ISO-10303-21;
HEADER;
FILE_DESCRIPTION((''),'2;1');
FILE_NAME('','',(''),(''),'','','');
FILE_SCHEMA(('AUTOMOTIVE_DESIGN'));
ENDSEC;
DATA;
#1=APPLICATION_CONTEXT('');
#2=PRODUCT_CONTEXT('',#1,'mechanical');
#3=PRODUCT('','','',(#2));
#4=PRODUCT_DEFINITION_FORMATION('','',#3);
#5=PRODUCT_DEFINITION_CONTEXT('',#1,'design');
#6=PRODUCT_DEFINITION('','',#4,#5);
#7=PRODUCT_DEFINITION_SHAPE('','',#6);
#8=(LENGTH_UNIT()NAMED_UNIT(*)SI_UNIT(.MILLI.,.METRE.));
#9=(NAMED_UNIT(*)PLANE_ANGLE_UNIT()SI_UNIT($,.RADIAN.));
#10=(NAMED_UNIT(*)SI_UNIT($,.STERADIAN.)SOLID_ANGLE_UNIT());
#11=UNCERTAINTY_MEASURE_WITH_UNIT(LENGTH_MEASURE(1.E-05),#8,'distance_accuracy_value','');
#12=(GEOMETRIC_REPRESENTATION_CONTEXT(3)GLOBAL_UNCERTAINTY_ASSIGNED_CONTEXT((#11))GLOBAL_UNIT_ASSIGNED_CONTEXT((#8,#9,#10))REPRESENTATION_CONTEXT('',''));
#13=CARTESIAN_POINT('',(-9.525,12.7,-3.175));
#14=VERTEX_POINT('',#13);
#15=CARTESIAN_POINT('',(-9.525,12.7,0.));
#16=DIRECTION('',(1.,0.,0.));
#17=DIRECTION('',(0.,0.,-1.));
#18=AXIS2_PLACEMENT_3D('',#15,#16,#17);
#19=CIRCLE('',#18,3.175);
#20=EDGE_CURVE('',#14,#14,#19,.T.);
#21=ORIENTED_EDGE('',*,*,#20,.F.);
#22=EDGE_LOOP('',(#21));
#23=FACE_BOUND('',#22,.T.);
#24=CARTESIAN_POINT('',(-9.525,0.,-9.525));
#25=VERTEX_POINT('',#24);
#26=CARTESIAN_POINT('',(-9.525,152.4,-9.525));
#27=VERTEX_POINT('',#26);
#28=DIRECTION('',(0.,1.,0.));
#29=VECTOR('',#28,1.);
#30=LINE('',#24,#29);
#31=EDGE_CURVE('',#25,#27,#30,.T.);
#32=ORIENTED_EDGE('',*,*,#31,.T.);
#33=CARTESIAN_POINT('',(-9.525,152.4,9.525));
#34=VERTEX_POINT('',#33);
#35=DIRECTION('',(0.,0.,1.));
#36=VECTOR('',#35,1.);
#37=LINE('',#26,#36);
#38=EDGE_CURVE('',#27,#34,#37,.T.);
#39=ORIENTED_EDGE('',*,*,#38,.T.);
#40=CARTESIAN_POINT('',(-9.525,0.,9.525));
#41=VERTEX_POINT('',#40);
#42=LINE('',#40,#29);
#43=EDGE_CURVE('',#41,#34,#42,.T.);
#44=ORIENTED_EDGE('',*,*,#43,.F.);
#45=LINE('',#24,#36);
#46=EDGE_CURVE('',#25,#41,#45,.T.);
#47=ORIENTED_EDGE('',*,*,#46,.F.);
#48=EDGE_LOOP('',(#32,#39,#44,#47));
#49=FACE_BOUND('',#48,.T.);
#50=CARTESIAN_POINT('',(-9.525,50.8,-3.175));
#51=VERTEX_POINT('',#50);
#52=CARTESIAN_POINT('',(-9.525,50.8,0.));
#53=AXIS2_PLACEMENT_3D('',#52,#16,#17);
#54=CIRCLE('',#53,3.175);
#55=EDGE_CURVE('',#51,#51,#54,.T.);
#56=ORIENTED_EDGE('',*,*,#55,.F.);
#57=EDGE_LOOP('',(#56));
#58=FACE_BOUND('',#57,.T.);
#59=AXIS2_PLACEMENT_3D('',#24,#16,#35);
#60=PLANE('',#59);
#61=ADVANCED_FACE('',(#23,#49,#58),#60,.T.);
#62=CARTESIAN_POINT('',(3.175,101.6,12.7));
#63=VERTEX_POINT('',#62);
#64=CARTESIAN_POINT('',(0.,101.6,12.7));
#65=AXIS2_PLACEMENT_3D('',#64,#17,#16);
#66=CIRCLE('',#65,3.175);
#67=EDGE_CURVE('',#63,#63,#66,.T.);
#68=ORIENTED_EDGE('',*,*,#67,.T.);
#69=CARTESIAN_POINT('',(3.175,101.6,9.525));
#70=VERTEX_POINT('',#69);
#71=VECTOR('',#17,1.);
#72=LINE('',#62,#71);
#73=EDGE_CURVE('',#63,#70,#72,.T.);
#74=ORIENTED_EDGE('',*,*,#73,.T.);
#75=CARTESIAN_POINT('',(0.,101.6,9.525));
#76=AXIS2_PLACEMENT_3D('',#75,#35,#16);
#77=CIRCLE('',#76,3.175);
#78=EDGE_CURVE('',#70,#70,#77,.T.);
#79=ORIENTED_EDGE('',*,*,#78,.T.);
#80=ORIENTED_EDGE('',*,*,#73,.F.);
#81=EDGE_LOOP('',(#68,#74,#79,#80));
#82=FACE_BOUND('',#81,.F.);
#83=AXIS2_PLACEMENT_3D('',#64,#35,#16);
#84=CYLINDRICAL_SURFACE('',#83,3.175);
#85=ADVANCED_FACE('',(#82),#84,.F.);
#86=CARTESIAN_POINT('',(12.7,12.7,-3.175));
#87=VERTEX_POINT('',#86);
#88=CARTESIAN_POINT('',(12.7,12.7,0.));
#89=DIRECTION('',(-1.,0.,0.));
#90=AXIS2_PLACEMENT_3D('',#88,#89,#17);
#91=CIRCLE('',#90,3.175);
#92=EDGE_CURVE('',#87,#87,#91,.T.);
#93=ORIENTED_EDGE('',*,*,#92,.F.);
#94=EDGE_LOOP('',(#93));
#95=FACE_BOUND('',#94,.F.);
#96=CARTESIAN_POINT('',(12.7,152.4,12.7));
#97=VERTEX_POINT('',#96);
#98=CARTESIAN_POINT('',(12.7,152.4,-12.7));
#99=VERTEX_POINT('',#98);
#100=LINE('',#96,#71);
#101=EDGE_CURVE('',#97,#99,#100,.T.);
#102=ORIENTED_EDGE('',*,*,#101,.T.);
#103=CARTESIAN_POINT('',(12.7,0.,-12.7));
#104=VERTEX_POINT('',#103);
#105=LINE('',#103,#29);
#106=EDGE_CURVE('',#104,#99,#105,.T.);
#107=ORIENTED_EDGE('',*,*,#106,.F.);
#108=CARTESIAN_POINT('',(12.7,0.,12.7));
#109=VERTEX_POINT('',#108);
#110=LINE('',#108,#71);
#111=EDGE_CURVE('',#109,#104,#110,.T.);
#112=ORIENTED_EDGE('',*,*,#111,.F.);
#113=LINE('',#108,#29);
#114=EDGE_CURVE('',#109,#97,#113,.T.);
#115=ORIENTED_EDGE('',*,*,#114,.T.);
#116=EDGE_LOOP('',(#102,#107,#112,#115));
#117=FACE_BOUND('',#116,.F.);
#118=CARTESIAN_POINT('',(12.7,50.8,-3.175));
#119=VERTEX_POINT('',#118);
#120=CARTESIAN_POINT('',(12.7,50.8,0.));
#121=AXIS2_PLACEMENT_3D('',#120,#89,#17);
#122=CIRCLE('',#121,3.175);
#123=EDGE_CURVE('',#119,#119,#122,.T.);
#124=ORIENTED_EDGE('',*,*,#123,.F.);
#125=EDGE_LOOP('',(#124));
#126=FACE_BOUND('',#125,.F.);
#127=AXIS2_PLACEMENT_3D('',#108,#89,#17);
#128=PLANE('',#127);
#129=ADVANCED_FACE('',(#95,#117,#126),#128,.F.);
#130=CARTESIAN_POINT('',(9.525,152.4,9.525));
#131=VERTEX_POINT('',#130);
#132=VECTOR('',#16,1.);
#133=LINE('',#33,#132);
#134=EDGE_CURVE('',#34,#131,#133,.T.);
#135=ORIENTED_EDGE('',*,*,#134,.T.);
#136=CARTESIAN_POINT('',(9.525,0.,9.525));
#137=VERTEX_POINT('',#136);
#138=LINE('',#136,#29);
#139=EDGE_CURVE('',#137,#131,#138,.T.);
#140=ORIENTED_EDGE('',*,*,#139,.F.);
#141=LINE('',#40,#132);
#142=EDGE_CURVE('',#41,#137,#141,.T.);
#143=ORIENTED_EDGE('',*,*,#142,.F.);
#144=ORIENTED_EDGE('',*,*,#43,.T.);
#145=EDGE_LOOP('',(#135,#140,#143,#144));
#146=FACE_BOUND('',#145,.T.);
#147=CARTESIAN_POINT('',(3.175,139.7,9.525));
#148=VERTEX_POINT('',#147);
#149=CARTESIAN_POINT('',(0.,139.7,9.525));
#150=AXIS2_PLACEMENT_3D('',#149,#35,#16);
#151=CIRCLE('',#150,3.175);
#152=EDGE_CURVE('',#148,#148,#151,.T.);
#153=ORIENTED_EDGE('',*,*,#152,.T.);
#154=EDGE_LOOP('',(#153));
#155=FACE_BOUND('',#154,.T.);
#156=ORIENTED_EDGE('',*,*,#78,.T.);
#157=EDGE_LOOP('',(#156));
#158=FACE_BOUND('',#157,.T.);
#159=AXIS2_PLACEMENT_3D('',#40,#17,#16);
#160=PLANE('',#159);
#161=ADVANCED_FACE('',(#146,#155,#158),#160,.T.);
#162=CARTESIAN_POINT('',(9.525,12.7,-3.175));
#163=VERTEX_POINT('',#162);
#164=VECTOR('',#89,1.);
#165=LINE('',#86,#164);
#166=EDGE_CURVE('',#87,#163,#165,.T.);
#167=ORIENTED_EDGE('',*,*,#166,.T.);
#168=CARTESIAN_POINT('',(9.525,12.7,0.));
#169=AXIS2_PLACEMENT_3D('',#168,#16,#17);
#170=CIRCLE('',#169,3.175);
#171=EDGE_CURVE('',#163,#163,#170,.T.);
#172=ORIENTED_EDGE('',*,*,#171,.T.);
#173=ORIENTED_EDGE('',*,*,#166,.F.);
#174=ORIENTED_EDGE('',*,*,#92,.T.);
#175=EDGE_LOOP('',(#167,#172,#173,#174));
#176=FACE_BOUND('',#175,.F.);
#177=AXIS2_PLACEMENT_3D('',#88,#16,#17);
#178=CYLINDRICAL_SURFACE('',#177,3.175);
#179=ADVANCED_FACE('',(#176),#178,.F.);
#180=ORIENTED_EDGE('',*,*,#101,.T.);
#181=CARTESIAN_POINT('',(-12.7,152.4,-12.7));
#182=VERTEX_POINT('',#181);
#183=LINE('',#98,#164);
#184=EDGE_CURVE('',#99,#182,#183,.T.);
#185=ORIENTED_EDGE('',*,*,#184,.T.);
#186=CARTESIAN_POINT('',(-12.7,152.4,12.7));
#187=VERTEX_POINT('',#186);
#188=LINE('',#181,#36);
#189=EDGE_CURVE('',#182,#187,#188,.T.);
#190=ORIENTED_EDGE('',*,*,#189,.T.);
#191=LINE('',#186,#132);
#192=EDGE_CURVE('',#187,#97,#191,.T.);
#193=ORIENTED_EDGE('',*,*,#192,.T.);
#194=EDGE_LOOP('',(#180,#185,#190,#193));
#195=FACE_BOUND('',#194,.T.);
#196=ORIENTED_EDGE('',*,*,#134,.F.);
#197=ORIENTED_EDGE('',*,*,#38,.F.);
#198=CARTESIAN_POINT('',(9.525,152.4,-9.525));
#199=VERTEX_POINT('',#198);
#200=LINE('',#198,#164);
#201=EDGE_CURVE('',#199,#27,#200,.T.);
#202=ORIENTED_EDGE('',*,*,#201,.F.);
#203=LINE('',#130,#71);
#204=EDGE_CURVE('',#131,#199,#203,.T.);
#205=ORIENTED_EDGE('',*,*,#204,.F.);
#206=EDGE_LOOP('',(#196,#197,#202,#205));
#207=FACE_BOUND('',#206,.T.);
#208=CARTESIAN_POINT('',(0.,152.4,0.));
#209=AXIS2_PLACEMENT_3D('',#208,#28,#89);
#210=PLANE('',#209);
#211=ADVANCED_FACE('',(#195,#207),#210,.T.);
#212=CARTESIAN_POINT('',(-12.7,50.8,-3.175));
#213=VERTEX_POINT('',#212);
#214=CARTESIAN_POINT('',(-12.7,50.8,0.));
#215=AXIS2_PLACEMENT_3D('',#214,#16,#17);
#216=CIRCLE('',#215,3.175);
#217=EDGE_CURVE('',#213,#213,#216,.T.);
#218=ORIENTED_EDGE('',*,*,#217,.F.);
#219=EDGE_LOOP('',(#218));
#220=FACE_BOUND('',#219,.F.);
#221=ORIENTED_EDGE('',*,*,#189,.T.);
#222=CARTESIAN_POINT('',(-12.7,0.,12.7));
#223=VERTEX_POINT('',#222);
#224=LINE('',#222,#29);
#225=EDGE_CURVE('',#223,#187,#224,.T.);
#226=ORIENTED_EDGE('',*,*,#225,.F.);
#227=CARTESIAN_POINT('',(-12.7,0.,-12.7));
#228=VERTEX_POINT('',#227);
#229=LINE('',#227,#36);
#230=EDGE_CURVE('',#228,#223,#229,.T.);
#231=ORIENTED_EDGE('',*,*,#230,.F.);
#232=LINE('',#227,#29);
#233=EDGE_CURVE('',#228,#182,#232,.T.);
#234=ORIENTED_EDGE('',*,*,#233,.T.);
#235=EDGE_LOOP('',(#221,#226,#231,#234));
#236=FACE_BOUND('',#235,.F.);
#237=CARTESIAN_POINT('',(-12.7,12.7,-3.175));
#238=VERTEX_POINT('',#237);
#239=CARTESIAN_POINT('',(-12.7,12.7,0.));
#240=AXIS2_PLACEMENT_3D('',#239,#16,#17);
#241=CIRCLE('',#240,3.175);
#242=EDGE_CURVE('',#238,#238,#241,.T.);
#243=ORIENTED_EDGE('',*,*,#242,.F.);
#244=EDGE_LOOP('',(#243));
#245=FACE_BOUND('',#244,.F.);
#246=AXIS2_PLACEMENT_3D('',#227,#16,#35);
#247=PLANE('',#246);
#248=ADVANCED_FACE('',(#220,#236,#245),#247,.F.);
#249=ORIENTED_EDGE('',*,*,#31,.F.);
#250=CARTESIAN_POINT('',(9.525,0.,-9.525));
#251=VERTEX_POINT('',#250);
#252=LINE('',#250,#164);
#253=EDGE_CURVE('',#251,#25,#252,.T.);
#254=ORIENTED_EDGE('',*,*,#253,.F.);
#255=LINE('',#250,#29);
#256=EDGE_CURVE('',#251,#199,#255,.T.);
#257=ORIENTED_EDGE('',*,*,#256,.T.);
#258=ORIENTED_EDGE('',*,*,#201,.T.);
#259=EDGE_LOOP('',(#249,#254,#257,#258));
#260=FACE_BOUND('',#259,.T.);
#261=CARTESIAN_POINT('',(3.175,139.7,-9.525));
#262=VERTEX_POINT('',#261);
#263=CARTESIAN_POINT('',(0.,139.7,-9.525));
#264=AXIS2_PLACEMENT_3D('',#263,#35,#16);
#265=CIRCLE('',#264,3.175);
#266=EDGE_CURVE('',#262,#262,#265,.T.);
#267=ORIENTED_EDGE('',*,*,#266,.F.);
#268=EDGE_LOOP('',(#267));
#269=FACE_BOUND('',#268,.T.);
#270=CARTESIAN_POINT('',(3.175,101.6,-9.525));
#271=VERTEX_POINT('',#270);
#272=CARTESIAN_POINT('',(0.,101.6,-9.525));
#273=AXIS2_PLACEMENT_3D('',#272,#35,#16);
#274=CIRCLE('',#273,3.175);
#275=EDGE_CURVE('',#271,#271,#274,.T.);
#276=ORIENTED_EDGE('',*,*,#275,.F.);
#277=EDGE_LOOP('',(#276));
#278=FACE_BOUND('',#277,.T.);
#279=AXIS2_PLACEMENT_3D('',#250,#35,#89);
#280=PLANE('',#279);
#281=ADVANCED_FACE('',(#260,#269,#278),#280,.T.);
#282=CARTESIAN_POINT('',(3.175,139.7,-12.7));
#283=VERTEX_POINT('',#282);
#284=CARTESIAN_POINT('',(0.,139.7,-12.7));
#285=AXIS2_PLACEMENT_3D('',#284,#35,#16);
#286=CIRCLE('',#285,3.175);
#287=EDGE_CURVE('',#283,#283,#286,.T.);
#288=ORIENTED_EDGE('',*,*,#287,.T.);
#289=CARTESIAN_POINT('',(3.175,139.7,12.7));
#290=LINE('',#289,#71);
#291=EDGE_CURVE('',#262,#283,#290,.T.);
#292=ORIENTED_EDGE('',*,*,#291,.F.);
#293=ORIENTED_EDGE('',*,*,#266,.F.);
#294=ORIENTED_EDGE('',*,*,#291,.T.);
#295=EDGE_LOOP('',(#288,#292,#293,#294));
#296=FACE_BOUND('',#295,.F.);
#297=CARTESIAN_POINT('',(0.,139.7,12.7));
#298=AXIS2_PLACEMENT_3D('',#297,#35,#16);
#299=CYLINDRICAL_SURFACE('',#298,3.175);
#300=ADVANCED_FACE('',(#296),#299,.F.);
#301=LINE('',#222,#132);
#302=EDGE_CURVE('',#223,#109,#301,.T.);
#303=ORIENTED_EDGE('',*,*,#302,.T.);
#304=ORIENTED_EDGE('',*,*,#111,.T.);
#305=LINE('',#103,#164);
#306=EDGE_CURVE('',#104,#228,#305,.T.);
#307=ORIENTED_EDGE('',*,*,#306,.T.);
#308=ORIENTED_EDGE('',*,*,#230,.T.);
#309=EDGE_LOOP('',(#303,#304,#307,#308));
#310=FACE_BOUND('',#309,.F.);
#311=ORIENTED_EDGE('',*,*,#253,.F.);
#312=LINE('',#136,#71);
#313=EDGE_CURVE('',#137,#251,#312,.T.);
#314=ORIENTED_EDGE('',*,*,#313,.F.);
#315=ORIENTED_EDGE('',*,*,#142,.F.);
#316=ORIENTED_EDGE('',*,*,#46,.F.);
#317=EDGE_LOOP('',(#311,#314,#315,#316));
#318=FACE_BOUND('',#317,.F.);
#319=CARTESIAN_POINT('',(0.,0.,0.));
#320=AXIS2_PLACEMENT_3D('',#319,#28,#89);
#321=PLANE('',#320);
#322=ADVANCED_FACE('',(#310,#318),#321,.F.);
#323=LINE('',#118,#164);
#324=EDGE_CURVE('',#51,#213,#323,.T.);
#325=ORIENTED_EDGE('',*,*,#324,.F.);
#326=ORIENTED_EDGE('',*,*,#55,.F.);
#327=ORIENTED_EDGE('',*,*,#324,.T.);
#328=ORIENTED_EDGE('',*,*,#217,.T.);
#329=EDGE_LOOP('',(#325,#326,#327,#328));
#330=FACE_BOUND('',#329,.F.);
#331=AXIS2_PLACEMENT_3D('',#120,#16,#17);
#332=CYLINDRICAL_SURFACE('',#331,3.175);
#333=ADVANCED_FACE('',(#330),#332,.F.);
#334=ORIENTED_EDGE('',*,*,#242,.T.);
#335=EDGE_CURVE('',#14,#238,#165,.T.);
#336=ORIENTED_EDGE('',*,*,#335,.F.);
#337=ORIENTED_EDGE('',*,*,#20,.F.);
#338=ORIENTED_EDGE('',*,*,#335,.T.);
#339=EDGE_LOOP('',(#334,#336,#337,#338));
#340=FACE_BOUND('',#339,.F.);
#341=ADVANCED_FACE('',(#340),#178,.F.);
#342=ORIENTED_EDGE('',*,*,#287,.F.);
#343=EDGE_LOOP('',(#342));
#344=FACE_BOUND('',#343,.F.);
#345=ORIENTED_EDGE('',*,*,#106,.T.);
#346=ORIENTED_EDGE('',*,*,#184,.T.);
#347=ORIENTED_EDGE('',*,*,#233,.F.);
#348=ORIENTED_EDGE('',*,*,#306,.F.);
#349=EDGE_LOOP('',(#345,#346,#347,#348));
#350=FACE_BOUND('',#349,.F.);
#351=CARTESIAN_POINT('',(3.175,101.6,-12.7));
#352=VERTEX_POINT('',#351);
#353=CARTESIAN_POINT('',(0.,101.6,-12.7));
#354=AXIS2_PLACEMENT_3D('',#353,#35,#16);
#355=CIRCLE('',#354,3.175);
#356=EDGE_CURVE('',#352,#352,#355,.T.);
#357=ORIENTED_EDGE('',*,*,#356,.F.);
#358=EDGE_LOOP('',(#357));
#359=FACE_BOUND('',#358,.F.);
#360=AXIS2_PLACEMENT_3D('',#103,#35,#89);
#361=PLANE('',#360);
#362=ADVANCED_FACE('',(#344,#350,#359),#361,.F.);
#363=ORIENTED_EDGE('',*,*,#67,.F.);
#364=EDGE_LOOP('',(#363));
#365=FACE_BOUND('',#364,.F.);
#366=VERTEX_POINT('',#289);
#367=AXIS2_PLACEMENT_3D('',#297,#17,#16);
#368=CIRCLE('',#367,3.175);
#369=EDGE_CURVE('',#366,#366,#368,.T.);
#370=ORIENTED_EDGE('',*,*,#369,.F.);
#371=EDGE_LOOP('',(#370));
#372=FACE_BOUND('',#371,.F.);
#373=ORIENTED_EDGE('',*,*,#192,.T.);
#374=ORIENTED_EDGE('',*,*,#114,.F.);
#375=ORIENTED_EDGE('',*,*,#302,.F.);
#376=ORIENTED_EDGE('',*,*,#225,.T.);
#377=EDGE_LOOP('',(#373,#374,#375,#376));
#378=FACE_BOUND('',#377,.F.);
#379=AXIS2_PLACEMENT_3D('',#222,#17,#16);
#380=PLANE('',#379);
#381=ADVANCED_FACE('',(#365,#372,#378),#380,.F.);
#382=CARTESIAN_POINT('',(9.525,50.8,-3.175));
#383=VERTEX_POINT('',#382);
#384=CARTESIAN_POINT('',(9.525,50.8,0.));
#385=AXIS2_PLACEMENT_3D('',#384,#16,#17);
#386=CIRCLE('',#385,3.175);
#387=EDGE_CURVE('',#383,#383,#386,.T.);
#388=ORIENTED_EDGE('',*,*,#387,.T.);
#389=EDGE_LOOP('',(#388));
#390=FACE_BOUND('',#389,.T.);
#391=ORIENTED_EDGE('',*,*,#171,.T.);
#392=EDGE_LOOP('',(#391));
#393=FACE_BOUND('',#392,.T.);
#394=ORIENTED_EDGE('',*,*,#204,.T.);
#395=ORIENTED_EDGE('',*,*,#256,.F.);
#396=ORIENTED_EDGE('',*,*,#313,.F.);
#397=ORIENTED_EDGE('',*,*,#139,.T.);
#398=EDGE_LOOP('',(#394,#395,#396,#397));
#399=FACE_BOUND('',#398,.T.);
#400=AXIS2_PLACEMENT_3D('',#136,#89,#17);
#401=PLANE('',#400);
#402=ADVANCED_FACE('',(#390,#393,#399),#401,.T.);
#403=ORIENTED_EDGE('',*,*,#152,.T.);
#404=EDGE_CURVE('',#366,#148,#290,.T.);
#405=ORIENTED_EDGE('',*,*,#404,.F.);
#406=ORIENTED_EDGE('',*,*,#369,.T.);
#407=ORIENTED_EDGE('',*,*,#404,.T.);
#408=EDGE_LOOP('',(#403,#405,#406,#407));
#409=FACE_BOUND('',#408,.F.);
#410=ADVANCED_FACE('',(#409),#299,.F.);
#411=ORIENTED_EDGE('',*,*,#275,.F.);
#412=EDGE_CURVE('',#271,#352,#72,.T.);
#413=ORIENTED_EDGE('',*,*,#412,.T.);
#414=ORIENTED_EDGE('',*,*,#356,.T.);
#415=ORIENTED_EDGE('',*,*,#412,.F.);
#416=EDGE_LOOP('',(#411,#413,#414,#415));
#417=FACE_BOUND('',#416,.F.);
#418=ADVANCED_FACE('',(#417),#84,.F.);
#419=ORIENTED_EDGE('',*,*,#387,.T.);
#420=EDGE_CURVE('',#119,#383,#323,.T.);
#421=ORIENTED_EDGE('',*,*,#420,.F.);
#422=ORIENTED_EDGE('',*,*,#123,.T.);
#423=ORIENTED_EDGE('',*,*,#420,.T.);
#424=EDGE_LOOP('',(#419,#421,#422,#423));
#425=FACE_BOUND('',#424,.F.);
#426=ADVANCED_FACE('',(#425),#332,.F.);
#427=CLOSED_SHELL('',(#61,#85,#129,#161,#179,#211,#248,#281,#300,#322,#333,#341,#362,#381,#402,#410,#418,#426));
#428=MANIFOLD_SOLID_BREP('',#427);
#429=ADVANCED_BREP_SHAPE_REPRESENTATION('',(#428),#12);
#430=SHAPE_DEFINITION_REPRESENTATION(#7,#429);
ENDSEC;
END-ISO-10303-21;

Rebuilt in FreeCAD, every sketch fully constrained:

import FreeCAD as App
import Part
import Sketcher

V = App.Vector
Q = App.Units.Quantity

doc = App.newDocument("Part")
params = doc.addObject("Spreadsheet::Sheet", "Params")
for row, (alias, value) in enumerate([
    ("sketch1_width", "1 in"),
    ("sketch1_width2", "0.75 in"),
    ("pad1_length", "6 in"),
    ("sketch2_diameter", "0.25 in"),
    ("pocket1_length", "1 in"),
    ("sketch3_diameter", "0.25 in"),
    ("pocket2_length", "1 in"),
], start=1):
    params.set(f"A{row}", alias)
    params.set(f"B{row}", "=" + value)
    params.setAlias(f"B{row}", alias)

body = doc.addObject("PartDesign::Body", "Body")

# Sketch on XZ plane
sketch1 = doc.addObject("Sketcher::SketchObject", "Sketch")
body.addObject(sketch1)
sketch1.AttachmentSupport = (doc.XZ_Plane, [""])
sketch1.MapMode = "FlatFace"
sketch1.addGeometry([
    Part.LineSegment(V(13, 13, 0), V(13, -13, 0)),  # 0
    Part.LineSegment(V(13, -13, 0), V(-13, -13, 0)),  # 1
    Part.LineSegment(V(-13, -13, 0), V(-13, 13, 0)),  # 2
    Part.LineSegment(V(-13, 13, 0), V(13, 13, 0)),  # 3
    Part.LineSegment(V(-10, -10, 0), V(10, -10, 0)),  # 4
    Part.LineSegment(V(10, -10, 0), V(10, 10, 0)),  # 5
    Part.LineSegment(V(10, 10, 0), V(-10, 10, 0)),  # 6
    Part.LineSegment(V(-10, 10, 0), V(-10, -10, 0)),  # 7
], False)
sketch1.addConstraint([
    Sketcher.Constraint("Coincident", 0, 2, 1, 1),
    Sketcher.Constraint("Coincident", 1, 2, 2, 1),
    Sketcher.Constraint("Coincident", 2, 2, 3, 1),
    Sketcher.Constraint("Coincident", 3, 2, 0, 1),
    Sketcher.Constraint("Coincident", 4, 2, 5, 1),
    Sketcher.Constraint("Coincident", 5, 2, 6, 1),
    Sketcher.Constraint("Coincident", 6, 2, 7, 1),
    Sketcher.Constraint("Coincident", 7, 2, 4, 1),
    Sketcher.Constraint("Vertical", 0),
    Sketcher.Constraint("Horizontal", 1),
    Sketcher.Constraint("Vertical", 2),
    Sketcher.Constraint("Horizontal", 3),
    Sketcher.Constraint("Horizontal", 4),
    Sketcher.Constraint("Vertical", 5),
    Sketcher.Constraint("Horizontal", 6),
    Sketcher.Constraint("Vertical", 7),
    Sketcher.Constraint("Symmetric", 0, 2, 2, 2, -1, 1),
    Sketcher.Constraint("Symmetric", 4, 2, 6, 2, -1, 1),
    Sketcher.Constraint("Equal", 3, 0),
    Sketcher.Constraint("Equal", 6, 5),
    Sketcher.Constraint("DistanceX", 1, 2, 1, 1, Q("1 in")),
    Sketcher.Constraint("DistanceX", 4, 1, 4, 2, Q("0.75 in")),
])
sketch1.setExpression("Constraints[20]", "Params.sketch1_width")
sketch1.setExpression("Constraints[21]", "Params.sketch1_width2")
pad1 = doc.addObject("PartDesign::Pad", "Pad")
body.addObject(pad1)
pad1.Profile = sketch1
pad1.setExpression("Length", "Params.pad1_length")
pad1.Reversed = True

# Sketch on XY plane
sketch2 = doc.addObject("Sketcher::SketchObject", "Sketch001")
body.addObject(sketch2)
sketch2.AttachmentSupport = (doc.XY_Plane, [""])
sketch2.MapMode = "FlatFace"
sketch2.AttachmentOffset = App.Placement(V(0, 0, 0.5 * 25.4), App.Rotation())
sketch2.addGeometry([
    Part.Circle(V(0, 139.7, 0), V(0, 0, 1), 3.2),
    Part.Circle(V(0, 101.6, 0), V(0, 0, 1), 3.2),
], False)
sketch2.addConstraint([
    Sketcher.Constraint("Equal", 0, 1),
    Sketcher.Constraint("PointOnObject", 0, 3, -2),
    Sketcher.Constraint("PointOnObject", 1, 3, -2),
    Sketcher.Constraint("Diameter", 0, Q("0.25 in")),
    Sketcher.Constraint("DistanceY", 1, 3, 0, 3, Q("1.5 in")),
    Sketcher.Constraint("DistanceY", -1, 1, 1, 3, Q("4 in")),
])
sketch2.setExpression("Constraints[3]", "Params.sketch2_diameter")
pocket1 = doc.addObject("PartDesign::Pocket", "Pocket")
body.addObject(pocket1)
pocket1.Profile = sketch2
pocket1.setExpression("Length", "Params.pocket1_length")

# Sketch on YZ plane
sketch3 = doc.addObject("Sketcher::SketchObject", "Sketch002")
body.addObject(sketch3)
sketch3.AttachmentSupport = (doc.YZ_Plane, [""])
sketch3.MapMode = "FlatFace"
sketch3.AttachmentOffset = App.Placement(V(0, 0, 0.5 * 25.4), App.Rotation())
sketch3.addGeometry([
    Part.Circle(V(12.7, 0, 0), V(0, 0, 1), 3.2),
    Part.Circle(V(50.8, 0, 0), V(0, 0, 1), 3.2),
], False)
sketch3.addConstraint([
    Sketcher.Constraint("Equal", 0, 1),
    Sketcher.Constraint("PointOnObject", 0, 3, -1),
    Sketcher.Constraint("PointOnObject", 1, 3, -1),
    Sketcher.Constraint("Diameter", 0, Q("0.25 in")),
    Sketcher.Constraint("DistanceX", -1, 1, 0, 3, Q("0.5 in")),
    Sketcher.Constraint("DistanceX", 0, 3, 1, 3, Q("1.5 in")),
])
sketch3.setExpression("Constraints[3]", "Params.sketch3_diameter")
pocket2 = doc.addObject("PartDesign::Pocket", "Pocket001")
body.addObject(pocket2)
pocket2.Profile = sketch3
pocket2.setExpression("Length", "Params.pocket2_length")

doc.recompute()
